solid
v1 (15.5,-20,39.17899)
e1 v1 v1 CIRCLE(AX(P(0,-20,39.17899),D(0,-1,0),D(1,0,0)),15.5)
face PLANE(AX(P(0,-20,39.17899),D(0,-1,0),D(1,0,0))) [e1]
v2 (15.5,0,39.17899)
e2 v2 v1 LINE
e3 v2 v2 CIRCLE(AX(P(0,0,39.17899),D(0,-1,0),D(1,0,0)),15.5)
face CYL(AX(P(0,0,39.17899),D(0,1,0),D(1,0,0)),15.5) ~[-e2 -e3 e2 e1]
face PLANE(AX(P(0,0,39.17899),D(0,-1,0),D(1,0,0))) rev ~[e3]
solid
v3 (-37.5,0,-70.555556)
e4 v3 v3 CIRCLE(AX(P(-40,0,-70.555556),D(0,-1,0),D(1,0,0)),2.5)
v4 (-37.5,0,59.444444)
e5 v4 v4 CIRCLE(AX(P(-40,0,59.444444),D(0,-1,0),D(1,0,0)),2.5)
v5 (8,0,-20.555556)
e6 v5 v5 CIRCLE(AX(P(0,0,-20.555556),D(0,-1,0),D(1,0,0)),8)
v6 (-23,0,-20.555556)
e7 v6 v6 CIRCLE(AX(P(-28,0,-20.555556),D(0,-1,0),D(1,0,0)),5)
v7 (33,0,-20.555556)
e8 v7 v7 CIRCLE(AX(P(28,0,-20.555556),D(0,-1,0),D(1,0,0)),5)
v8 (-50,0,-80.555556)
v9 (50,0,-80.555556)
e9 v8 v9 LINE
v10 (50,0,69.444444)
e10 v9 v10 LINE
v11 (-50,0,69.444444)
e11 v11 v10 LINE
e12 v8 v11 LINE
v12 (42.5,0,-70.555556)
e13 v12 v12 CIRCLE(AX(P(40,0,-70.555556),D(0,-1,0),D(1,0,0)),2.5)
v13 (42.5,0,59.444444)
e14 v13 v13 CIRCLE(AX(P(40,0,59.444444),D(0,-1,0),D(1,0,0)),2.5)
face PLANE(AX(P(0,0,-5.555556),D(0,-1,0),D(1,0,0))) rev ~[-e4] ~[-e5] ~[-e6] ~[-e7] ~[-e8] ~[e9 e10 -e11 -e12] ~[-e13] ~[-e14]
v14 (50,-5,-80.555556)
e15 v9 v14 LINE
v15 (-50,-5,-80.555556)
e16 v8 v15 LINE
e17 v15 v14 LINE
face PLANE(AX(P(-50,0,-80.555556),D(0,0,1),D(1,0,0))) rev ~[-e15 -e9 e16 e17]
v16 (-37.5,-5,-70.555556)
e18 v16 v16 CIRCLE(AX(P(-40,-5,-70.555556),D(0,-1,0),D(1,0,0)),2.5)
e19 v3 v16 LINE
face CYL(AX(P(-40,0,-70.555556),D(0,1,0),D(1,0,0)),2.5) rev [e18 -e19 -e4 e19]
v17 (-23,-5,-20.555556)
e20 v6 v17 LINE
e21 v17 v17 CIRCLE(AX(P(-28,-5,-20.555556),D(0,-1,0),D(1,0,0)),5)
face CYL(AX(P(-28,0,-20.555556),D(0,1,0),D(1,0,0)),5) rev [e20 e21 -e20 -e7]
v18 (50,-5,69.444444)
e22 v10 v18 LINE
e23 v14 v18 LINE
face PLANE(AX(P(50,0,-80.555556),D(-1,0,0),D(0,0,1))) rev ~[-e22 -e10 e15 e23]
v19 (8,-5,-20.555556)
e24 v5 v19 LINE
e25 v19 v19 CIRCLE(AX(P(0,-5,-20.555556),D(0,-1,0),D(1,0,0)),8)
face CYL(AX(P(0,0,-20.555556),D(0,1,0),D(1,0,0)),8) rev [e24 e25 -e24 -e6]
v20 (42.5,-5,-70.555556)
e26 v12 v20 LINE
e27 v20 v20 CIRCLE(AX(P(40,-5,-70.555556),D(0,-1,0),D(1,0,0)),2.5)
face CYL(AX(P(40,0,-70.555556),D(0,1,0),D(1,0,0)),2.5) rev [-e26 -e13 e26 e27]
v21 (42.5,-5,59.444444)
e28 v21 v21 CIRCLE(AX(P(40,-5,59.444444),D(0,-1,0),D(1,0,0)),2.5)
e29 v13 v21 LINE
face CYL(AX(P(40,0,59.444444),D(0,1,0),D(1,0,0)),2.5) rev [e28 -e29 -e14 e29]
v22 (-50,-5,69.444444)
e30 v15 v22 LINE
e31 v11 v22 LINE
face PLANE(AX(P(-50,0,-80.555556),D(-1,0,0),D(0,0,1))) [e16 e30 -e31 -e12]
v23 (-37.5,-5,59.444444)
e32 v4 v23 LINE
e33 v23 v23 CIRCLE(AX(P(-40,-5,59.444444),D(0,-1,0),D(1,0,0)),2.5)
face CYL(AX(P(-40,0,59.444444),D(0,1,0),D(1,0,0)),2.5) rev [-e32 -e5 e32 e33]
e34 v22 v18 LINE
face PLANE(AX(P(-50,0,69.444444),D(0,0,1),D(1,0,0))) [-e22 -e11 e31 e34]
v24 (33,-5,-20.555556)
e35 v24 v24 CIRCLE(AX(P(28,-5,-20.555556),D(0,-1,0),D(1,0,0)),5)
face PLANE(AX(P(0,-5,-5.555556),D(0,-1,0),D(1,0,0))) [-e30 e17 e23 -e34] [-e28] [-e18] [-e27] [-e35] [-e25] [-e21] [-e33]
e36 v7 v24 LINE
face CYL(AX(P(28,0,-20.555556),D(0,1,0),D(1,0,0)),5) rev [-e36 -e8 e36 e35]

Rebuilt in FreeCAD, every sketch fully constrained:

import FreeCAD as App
import Part
import Sketcher
from FreeCAD import Vector


def add_polygon(sketch, points):
    """Adds a closed chain of lines whose ends are joined by coincident constraints."""
    first, n = sketch.GeometryCount, len(points)
    for a, b in zip(points, points[1:] + points[:1]):
        sketch.addGeometry(Part.LineSegment(App.Vector(*a, 0), App.Vector(*b, 0)), False)
    for i in range(n):
        sketch.addConstraint(Sketcher.Constraint("Coincident", first + i, 2, first + (i + 1) % n, 1))

doc = App.newDocument("Part")
body = doc.addObject("PartDesign::Body", "Body")

# Sketch on XZ plane
sketch1 = body.newObject("Sketcher::SketchObject", "Sketch")
sketch1.AttachmentSupport = (doc.getObject("XZ_Plane"), [""])
sketch1.MapMode = "FlatFace"
add_polygon(sketch1, [(-50, 69.4), (-50, -80.6), (50, -80.6), (50, 69.4)])  # lines 0-3
sketch1.addGeometry(Part.Circle(Vector(-40, -70.6, 0), Vector(0, 0, 1), 2.5), False)  # 4
sketch1.addGeometry(Part.Circle(Vector(-28, -20.6, 0), Vector(0, 0, 1), 5), False)  # 5
sketch1.addGeometry(Part.Circle(Vector(40, -70.6, 0), Vector(0, 0, 1), 2.5), False)  # 6
sketch1.addGeometry(Part.Circle(Vector(0, -20.6, 0), Vector(0, 0, 1), 8), False)  # 7
sketch1.addGeometry(Part.Circle(Vector(28, -20.6, 0), Vector(0, 0, 1), 5), False)  # 8
sketch1.addGeometry(Part.Circle(Vector(-40, 59.4, 0), Vector(0, 0, 1), 2.5), False)  # 9
sketch1.addGeometry(Part.Circle(Vector(40, 59.4, 0), Vector(0, 0, 1), 2.5), False)  # 10
sketch1.addConstraint([
    Sketcher.Constraint("Vertical", 0),
    Sketcher.Constraint("Horizontal", 1),
    Sketcher.Constraint("Vertical", 2),
    Sketcher.Constraint("Horizontal", 3),
    Sketcher.Constraint("Equal", 4, 6),
    Sketcher.Constraint("Equal", 5, 8),
    Sketcher.Constraint("Equal", 6, 9),
    Sketcher.Constraint("Equal", 9, 10),
    Sketcher.Constraint("Symmetric", 4, 3, 6, 3, -2),
    Sketcher.Constraint("Symmetric", 5, 3, 8, 3, -2),
    Sketcher.Constraint("Symmetric", 9, 3, 10, 3, -2),
    Sketcher.Constraint("PointOnObject", 7, 3, -2),
    Sketcher.Constraint("Horizontal", 5, 3, 7, 3),
    Sketcher.Constraint("Vertical", 4, 3, 9, 3),
    Sketcher.Constraint("Diameter", 4, 5.0),
    Sketcher.Constraint("Diameter", 5, 10.0),
    Sketcher.Constraint("Diameter", 7, 16.0),
    Sketcher.Constraint("DistanceX", 1, 1, 1, 2, 100.0),
    Sketcher.Constraint("DistanceY", 0, 2, 0, 1, 150.0),
    Sketcher.Constraint("DistanceX", 4, 3, -1, 1, 40.0),
    Sketcher.Constraint("DistanceX", 5, 3, -1, 1, 28.0),
    Sketcher.Constraint("DistanceX", 0, 2, -1, 1, 50.0),
    Sketcher.Constraint("DistanceY", 4, 3, 5, 3, 50.0),
    Sketcher.Constraint("DistanceY", 5, 3, 9, 3, 80.0),
    Sketcher.Constraint("DistanceY", 0, 2, 4, 3, 10.0),
    Sketcher.Constraint("DistanceY", 4, 3, -1, 1, 70.555556),
])
pad1 = body.newObject("PartDesign::Pad", "Pad")
pad1.Profile = sketch1
pad1.Length = 5
body2 = doc.addObject("PartDesign::Body", "Body001")

# Sketch on XZ plane
sketch2 = body2.newObject("Sketcher::SketchObject", "Sketch001")
sketch2.AttachmentSupport = (doc.getObject("XZ_Plane001"), [""])
sketch2.MapMode = "FlatFace"
sketch2.addGeometry(Part.Circle(Vector(0, 39, 0), Vector(0, 0, 1), 16), False)
sketch2.addConstraint([
    Sketcher.Constraint("PointOnObject", 0, 3, -2),
    Sketcher.Constraint("Diameter", 0, 31.0),
    Sketcher.Constraint("DistanceY", -1, 1, 0, 3, 39.17899),
])
pad2 = body2.newObject("PartDesign::Pad", "Pad001")
pad2.Profile = sketch2
pad2.Length = 20

doc.recompute()
